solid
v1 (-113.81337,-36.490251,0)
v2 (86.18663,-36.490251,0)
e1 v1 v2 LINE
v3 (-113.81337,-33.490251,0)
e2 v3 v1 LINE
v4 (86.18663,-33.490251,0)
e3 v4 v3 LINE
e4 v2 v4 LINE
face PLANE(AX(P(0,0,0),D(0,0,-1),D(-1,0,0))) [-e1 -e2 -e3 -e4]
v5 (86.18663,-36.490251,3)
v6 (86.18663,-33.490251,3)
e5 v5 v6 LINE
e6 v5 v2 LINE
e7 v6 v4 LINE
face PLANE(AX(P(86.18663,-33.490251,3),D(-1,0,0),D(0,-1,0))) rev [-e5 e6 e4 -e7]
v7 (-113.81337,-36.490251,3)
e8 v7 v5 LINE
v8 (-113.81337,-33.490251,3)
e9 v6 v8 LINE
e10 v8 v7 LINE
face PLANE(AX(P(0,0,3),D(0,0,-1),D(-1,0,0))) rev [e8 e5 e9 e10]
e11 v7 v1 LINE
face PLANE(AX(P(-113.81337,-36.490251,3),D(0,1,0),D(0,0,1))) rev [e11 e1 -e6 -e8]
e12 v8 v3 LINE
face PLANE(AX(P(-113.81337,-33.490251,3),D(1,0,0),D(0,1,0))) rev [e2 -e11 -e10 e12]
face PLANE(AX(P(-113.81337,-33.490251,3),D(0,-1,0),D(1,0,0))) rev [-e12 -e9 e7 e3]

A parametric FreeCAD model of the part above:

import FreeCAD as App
import Part
import Sketcher
from FreeCAD import Vector


def add_polygon(sketch, points):
    """Adds a closed chain of lines whose ends are joined by coincident constraints."""
    first, n = sketch.GeometryCount, len(points)
    for a, b in zip(points, points[1:] + points[:1]):
        sketch.addGeometry(Part.LineSegment(App.Vector(*a, 0), App.Vector(*b, 0)), False)
    for i in range(n):
        sketch.addConstraint(Sketcher.Constraint("Coincident", first + i, 2, first + (i + 1) % n, 1))

doc = App.newDocument("Part")
params = doc.addObject("Spreadsheet::Sheet", "Params")
for row, (alias, value) in enumerate([
    ("sketch1_width", "200 mm"),
    ("sketch1_height", "3 mm"),
    ("pad1_length", "3 mm"),
], start=1):
    params.set(f"A{row}", alias)
    params.set(f"B{row}", "=" + value)
    params.setAlias(f"B{row}", alias)

body = doc.addObject("PartDesign::Body", "Body")

sketch1 = body.newObject("Sketcher::SketchObject", "Sketch")
sketch1.AttachmentSupport = (doc.getObject("XY_Plane"), [""])
sketch1.MapMode = "FlatFace"
add_polygon(sketch1, [(-113.81337, -33.490251), (-113.81337, -36.490251), (86.18663, -36.490251), (86.18663, -33.490251)])
sketch1.addConstraint([
    Sketcher.Constraint("Vertical", 0),
    Sketcher.Constraint("Horizontal", 1),
    Sketcher.Constraint("Vertical", 2),
    Sketcher.Constraint("Horizontal", 3),
    Sketcher.Constraint("DistanceX", 1, 1, 1, 2, 200.0),
    Sketcher.Constraint("DistanceY", 0, 2, 0, 1, 3.0),
    Sketcher.Constraint("DistanceX", 0, 2, -1, 1, 113.81337),
    Sketcher.Constraint("DistanceY", 0, 2, -1, 1, 36.490251),
])
sketch1.setExpression("Constraints[8]", "Params.sketch1_width")
sketch1.setExpression("Constraints[9]", "Params.sketch1_height")
pad1 = body.newObject("PartDesign::Pad", "Pad")
pad1.Profile = sketch1
pad1.setExpression("Length", "Params.pad1_length")

doc.recompute()
